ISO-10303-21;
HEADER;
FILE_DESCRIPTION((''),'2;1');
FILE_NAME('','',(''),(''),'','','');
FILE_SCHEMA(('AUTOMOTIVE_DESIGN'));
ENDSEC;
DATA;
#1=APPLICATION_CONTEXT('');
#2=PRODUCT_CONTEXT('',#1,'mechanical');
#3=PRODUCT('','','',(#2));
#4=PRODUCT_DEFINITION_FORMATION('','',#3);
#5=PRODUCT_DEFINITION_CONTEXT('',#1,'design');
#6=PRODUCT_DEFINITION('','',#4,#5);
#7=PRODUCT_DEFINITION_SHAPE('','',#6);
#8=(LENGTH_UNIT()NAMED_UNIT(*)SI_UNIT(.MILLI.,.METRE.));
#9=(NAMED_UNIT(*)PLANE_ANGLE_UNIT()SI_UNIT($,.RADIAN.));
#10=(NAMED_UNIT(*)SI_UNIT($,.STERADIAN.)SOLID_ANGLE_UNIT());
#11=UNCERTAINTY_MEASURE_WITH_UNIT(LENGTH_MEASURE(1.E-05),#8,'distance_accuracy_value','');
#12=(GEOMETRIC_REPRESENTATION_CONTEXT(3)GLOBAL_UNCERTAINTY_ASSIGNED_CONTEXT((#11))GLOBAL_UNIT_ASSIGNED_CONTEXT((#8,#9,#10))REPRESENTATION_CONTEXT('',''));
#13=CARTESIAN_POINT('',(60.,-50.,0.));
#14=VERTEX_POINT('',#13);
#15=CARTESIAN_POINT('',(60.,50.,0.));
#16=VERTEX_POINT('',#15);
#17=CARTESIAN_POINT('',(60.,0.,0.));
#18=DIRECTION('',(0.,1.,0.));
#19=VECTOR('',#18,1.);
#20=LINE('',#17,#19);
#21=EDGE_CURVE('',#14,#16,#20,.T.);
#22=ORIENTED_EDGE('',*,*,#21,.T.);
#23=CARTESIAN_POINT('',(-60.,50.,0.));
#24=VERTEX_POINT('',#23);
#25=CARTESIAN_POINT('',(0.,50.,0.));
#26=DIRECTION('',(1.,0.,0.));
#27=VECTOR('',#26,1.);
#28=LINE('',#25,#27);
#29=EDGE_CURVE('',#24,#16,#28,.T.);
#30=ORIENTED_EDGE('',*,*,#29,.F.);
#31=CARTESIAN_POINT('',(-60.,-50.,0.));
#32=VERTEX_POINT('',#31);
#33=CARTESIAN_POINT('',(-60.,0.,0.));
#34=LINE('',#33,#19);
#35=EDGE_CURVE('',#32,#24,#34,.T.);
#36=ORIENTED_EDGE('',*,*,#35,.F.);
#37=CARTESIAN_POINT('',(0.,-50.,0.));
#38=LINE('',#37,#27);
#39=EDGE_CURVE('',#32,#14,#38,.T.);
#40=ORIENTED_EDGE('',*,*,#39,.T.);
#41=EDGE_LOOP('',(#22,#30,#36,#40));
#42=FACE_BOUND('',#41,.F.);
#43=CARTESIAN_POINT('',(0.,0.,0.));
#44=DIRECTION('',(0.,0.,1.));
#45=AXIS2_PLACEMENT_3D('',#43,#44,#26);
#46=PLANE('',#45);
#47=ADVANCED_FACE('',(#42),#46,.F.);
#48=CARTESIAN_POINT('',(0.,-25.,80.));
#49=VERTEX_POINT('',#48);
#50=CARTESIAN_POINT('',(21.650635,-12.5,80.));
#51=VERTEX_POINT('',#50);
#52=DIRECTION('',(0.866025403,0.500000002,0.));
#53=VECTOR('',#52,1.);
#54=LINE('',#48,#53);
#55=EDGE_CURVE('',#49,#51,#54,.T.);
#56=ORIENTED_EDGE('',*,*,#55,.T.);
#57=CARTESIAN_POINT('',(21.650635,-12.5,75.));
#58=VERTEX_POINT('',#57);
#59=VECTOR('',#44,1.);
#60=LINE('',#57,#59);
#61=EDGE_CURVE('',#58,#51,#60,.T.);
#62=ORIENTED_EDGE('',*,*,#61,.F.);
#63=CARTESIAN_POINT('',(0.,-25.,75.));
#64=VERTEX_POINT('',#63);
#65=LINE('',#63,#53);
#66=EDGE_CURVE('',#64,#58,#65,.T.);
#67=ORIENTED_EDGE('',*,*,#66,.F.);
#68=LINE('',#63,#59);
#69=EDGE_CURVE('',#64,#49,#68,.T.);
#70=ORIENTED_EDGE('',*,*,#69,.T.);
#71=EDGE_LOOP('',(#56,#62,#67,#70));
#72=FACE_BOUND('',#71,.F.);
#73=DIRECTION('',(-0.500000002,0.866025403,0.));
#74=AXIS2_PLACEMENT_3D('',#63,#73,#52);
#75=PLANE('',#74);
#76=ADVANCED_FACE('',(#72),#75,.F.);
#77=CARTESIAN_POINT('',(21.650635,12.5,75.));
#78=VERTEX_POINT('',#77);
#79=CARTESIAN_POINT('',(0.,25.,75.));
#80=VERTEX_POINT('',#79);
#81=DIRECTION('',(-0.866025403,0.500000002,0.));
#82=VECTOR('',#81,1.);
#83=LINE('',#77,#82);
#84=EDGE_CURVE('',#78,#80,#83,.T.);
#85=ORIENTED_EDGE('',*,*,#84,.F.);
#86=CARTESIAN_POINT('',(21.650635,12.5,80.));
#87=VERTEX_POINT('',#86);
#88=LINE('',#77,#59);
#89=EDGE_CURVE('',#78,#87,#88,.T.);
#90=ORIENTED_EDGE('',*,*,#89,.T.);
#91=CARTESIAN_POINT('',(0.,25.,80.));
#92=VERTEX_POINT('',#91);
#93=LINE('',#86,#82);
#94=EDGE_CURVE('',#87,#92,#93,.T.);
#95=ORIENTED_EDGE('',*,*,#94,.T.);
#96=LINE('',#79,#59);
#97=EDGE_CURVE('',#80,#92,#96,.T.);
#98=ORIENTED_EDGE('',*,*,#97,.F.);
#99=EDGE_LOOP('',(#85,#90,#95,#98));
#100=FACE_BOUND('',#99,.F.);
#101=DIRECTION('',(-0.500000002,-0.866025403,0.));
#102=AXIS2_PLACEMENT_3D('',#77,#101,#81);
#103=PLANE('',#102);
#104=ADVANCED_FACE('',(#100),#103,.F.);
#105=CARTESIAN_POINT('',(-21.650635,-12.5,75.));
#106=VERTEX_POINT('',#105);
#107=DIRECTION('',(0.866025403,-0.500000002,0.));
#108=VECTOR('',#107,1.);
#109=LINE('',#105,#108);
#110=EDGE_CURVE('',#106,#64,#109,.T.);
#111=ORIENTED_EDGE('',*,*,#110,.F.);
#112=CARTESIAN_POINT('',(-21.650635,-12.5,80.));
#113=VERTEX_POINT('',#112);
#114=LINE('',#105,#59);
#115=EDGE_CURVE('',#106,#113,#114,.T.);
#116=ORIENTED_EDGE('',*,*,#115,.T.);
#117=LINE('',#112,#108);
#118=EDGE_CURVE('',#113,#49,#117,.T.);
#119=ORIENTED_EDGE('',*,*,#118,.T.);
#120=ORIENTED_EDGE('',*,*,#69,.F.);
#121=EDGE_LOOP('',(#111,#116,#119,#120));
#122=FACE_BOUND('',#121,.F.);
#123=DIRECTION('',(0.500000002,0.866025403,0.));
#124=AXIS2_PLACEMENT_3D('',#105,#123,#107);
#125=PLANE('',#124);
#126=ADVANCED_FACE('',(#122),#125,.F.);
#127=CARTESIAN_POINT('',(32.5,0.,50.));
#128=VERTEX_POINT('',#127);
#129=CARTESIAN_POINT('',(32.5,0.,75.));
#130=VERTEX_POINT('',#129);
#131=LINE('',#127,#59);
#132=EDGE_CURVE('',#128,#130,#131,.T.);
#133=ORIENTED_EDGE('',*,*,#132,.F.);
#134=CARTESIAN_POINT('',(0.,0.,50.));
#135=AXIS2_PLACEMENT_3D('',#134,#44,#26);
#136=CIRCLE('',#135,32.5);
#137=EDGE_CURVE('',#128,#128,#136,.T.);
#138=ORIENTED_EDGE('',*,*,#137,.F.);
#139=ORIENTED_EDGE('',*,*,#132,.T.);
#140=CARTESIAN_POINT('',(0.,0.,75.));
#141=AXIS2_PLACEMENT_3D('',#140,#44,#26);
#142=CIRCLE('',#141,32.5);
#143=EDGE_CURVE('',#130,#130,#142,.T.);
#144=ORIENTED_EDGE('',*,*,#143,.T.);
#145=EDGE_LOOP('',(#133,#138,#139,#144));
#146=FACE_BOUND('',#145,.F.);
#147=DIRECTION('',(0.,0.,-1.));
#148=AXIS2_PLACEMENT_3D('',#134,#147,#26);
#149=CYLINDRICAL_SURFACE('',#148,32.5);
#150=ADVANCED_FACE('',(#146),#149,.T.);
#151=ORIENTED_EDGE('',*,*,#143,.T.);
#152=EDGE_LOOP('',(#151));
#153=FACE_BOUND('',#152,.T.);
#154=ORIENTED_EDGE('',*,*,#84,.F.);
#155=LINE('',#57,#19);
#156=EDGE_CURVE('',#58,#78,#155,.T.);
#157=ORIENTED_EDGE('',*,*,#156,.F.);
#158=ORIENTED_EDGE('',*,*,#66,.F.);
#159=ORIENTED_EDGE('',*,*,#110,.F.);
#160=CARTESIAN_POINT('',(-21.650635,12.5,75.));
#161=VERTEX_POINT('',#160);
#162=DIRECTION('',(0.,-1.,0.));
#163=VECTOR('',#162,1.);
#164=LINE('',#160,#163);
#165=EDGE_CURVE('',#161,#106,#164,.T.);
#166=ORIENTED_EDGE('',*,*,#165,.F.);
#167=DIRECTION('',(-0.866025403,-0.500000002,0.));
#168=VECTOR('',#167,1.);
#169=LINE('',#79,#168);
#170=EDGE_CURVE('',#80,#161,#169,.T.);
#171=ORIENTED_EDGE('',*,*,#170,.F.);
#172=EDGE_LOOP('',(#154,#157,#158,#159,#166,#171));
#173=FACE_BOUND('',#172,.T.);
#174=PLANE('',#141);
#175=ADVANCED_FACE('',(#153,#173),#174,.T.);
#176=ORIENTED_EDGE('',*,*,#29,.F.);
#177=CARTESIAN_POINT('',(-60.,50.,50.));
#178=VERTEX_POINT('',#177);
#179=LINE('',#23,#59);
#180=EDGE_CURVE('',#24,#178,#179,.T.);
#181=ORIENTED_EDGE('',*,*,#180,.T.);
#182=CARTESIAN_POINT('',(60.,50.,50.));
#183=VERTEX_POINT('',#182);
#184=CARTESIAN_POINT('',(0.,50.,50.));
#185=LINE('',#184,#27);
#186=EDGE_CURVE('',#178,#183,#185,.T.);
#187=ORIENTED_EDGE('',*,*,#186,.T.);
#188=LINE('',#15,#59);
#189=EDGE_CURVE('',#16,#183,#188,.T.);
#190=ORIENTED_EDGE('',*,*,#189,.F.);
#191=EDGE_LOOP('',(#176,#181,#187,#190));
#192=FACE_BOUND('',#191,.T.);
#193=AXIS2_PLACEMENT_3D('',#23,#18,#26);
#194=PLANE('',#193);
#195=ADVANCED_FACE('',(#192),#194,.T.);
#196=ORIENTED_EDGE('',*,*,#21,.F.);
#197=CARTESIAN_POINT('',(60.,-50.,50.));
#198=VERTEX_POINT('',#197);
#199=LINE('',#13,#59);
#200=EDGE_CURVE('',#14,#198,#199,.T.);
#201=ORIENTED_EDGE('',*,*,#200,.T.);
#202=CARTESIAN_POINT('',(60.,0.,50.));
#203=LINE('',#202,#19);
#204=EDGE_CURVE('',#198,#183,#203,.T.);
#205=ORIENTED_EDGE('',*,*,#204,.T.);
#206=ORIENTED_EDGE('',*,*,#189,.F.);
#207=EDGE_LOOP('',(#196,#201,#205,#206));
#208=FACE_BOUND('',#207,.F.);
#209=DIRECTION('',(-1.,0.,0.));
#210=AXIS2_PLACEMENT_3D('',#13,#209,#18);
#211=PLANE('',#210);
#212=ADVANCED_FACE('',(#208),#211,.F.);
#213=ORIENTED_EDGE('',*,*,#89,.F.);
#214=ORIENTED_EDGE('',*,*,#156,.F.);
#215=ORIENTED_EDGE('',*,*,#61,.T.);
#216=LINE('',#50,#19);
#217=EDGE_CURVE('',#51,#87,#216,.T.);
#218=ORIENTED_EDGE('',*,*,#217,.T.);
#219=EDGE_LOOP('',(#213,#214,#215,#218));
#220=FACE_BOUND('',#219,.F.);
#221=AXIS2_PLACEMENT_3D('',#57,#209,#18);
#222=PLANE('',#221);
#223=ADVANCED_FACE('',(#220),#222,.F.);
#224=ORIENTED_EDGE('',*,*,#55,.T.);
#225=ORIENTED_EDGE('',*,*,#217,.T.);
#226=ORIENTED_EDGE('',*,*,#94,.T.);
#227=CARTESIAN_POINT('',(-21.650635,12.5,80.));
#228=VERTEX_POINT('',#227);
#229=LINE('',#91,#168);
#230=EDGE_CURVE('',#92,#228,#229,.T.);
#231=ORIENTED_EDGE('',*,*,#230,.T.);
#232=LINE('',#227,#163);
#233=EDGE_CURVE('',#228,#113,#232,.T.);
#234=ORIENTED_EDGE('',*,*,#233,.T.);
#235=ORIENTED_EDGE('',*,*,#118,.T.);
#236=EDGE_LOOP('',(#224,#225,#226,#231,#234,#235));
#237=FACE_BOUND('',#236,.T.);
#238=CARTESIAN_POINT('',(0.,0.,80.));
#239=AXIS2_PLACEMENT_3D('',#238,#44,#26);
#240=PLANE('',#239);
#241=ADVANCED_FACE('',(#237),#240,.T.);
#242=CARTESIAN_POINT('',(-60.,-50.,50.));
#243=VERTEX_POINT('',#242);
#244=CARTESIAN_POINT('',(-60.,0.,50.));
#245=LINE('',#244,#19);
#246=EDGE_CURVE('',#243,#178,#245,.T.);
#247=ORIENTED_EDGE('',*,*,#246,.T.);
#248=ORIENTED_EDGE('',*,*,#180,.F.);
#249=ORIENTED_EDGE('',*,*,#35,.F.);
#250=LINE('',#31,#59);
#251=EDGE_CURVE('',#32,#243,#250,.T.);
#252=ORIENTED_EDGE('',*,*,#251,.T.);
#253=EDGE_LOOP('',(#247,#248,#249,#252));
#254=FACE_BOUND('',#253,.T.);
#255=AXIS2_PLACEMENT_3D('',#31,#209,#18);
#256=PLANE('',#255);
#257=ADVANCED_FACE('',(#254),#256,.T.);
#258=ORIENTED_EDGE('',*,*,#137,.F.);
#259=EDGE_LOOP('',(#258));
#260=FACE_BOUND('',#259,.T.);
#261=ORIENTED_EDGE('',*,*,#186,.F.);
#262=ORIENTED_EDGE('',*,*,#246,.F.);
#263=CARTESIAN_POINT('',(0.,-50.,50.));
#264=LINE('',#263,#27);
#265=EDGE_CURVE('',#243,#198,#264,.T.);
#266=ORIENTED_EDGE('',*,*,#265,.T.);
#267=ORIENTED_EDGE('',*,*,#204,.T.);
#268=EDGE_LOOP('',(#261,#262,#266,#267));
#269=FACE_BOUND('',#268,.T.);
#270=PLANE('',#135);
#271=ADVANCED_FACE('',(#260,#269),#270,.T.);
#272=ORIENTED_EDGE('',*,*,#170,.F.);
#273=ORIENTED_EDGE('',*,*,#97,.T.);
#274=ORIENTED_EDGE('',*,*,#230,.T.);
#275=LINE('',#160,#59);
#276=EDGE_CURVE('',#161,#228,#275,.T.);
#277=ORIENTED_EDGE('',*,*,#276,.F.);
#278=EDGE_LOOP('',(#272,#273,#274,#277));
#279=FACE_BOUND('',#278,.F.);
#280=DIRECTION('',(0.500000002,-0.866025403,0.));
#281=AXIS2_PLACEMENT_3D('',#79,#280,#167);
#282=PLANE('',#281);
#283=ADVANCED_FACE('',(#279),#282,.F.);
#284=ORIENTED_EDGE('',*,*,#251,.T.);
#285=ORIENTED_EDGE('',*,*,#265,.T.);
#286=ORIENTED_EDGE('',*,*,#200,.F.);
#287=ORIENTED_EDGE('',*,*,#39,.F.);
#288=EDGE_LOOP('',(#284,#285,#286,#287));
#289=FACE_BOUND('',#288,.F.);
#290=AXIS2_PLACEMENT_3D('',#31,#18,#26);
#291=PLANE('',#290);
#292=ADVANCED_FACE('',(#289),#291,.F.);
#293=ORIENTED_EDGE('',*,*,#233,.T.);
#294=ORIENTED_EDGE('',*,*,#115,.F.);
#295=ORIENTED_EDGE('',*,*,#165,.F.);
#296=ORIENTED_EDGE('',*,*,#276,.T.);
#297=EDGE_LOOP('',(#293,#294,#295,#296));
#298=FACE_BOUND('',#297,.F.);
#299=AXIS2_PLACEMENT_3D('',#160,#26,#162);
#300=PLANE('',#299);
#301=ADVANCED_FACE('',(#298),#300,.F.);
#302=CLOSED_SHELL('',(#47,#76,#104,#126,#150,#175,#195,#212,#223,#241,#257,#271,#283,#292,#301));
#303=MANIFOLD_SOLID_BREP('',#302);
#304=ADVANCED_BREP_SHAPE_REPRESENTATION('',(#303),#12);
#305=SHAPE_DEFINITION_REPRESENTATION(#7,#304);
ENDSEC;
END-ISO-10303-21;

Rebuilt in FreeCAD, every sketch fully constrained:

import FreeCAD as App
import Part
import Sketcher
Q = App.Units.Quantity


def add_polygon(sketch, points):
    """Adds a closed chain of lines whose ends are joined by coincident constraints."""
    first, n = sketch.GeometryCount, len(points)
    for a, b in zip(points, points[1:] + points[:1]):
        sketch.addGeometry(Part.LineSegment(App.Vector(*a, 0), App.Vector(*b, 0)), False)
    for i in range(n):
        sketch.addConstraint(Sketcher.Constraint("Coincident", first + i, 2, first + (i + 1) % n, 1))

doc = App.newDocument("Part")
body = doc.addObject("PartDesign::Body", "Body")

# Sketch on XY plane
sketch1 = doc.addObject("Sketcher::SketchObject", "Sketch")
body.addObject(sketch1)
sketch1.AttachmentSupport = (doc.XY_Plane, [""])
sketch1.MapMode = "FlatFace"
add_polygon(sketch1, [(-60, 50), (-60, -50), (60, -50), (60, 50)])  # lines 0-3
sketch1.addConstraint([
    Sketcher.Constraint("Vertical", 0),
    Sketcher.Constraint("Horizontal", 1),
    Sketcher.Constraint("Vertical", 2),
    Sketcher.Constraint("Horizontal", 3),
    Sketcher.Constraint("Symmetric", 0, 2, 2, 2, -1, 1),
    Sketcher.Constraint("DistanceX", 1, 1, 1, 2, 120.0),
    Sketcher.Constraint("DistanceY", 0, 2, 0, 1, 100.0),
])
pad1 = doc.addObject("PartDesign::Pad", "Pad")
body.addObject(pad1)
pad1.Profile = sketch1
pad1.Length = 50

# Sketch on XY plane
sketch2 = doc.addObject("Sketcher::SketchObject", "Sketch001")
body.addObject(sketch2)
sketch2.AttachmentSupport = (doc.XY_Plane, [""])
sketch2.MapMode = "FlatFace"
sketch2.AttachmentOffset = App.Placement(App.Vector(0, 0, 50), App.Rotation())
sketch2.addGeometry(Part.Circle(App.Vector(0, 0, 0), App.Vector(0, 0, 1), 32), False)
sketch2.addConstraint([
    Sketcher.Constraint("Coincident", 0, 3, -1, 1),
    Sketcher.Constraint("Diameter", 0, 65.0),
])
pad2 = doc.addObject("PartDesign::Pad", "Pad001")
body.addObject(pad2)
pad2.Profile = sketch2
pad2.Length = 25

# Sketch on XY plane
sketch3 = doc.addObject("Sketcher::SketchObject", "Sketch002")
body.addObject(sketch3)
sketch3.AttachmentSupport = (doc.XY_Plane, [""])
sketch3.MapMode = "FlatFace"
sketch3.AttachmentOffset = App.Placement(App.Vector(0, 0, 75), App.Rotation())
add_polygon(sketch3, [(-22, -12), (0, -25), (22, -12), (22, 12), (0, 25), (-22, 12)])  # lines 0-5
sketch3.addConstraint([
    Sketcher.Constraint("Vertical", 2),
    Sketcher.Constraint("Vertical", 5),
    Sketcher.Constraint("Symmetric", 0, 2, 3, 2, -1, 1),
    Sketcher.Constraint("Symmetric", 1, 2, 4, 2, -1, 1),
    Sketcher.Constraint("PointOnObject", 0, 2, -2),
    Sketcher.Constraint("Parallel", 0, 3),
    Sketcher.Constraint("Horizontal", 2, 2, 4, 2),
    Sketcher.Constraint("DistanceY", 2, 1, 2, 2, 25.0),
    Sketcher.Constraint("Angle", 0, Q("-30 deg")),
    Sketcher.Constraint("Distance", 0, 25.0),
])
pad3 = doc.addObject("PartDesign::Pad", "Pad002")
body.addObject(pad3)
pad3.Profile = sketch3
pad3.Length = 5

doc.recompute()
